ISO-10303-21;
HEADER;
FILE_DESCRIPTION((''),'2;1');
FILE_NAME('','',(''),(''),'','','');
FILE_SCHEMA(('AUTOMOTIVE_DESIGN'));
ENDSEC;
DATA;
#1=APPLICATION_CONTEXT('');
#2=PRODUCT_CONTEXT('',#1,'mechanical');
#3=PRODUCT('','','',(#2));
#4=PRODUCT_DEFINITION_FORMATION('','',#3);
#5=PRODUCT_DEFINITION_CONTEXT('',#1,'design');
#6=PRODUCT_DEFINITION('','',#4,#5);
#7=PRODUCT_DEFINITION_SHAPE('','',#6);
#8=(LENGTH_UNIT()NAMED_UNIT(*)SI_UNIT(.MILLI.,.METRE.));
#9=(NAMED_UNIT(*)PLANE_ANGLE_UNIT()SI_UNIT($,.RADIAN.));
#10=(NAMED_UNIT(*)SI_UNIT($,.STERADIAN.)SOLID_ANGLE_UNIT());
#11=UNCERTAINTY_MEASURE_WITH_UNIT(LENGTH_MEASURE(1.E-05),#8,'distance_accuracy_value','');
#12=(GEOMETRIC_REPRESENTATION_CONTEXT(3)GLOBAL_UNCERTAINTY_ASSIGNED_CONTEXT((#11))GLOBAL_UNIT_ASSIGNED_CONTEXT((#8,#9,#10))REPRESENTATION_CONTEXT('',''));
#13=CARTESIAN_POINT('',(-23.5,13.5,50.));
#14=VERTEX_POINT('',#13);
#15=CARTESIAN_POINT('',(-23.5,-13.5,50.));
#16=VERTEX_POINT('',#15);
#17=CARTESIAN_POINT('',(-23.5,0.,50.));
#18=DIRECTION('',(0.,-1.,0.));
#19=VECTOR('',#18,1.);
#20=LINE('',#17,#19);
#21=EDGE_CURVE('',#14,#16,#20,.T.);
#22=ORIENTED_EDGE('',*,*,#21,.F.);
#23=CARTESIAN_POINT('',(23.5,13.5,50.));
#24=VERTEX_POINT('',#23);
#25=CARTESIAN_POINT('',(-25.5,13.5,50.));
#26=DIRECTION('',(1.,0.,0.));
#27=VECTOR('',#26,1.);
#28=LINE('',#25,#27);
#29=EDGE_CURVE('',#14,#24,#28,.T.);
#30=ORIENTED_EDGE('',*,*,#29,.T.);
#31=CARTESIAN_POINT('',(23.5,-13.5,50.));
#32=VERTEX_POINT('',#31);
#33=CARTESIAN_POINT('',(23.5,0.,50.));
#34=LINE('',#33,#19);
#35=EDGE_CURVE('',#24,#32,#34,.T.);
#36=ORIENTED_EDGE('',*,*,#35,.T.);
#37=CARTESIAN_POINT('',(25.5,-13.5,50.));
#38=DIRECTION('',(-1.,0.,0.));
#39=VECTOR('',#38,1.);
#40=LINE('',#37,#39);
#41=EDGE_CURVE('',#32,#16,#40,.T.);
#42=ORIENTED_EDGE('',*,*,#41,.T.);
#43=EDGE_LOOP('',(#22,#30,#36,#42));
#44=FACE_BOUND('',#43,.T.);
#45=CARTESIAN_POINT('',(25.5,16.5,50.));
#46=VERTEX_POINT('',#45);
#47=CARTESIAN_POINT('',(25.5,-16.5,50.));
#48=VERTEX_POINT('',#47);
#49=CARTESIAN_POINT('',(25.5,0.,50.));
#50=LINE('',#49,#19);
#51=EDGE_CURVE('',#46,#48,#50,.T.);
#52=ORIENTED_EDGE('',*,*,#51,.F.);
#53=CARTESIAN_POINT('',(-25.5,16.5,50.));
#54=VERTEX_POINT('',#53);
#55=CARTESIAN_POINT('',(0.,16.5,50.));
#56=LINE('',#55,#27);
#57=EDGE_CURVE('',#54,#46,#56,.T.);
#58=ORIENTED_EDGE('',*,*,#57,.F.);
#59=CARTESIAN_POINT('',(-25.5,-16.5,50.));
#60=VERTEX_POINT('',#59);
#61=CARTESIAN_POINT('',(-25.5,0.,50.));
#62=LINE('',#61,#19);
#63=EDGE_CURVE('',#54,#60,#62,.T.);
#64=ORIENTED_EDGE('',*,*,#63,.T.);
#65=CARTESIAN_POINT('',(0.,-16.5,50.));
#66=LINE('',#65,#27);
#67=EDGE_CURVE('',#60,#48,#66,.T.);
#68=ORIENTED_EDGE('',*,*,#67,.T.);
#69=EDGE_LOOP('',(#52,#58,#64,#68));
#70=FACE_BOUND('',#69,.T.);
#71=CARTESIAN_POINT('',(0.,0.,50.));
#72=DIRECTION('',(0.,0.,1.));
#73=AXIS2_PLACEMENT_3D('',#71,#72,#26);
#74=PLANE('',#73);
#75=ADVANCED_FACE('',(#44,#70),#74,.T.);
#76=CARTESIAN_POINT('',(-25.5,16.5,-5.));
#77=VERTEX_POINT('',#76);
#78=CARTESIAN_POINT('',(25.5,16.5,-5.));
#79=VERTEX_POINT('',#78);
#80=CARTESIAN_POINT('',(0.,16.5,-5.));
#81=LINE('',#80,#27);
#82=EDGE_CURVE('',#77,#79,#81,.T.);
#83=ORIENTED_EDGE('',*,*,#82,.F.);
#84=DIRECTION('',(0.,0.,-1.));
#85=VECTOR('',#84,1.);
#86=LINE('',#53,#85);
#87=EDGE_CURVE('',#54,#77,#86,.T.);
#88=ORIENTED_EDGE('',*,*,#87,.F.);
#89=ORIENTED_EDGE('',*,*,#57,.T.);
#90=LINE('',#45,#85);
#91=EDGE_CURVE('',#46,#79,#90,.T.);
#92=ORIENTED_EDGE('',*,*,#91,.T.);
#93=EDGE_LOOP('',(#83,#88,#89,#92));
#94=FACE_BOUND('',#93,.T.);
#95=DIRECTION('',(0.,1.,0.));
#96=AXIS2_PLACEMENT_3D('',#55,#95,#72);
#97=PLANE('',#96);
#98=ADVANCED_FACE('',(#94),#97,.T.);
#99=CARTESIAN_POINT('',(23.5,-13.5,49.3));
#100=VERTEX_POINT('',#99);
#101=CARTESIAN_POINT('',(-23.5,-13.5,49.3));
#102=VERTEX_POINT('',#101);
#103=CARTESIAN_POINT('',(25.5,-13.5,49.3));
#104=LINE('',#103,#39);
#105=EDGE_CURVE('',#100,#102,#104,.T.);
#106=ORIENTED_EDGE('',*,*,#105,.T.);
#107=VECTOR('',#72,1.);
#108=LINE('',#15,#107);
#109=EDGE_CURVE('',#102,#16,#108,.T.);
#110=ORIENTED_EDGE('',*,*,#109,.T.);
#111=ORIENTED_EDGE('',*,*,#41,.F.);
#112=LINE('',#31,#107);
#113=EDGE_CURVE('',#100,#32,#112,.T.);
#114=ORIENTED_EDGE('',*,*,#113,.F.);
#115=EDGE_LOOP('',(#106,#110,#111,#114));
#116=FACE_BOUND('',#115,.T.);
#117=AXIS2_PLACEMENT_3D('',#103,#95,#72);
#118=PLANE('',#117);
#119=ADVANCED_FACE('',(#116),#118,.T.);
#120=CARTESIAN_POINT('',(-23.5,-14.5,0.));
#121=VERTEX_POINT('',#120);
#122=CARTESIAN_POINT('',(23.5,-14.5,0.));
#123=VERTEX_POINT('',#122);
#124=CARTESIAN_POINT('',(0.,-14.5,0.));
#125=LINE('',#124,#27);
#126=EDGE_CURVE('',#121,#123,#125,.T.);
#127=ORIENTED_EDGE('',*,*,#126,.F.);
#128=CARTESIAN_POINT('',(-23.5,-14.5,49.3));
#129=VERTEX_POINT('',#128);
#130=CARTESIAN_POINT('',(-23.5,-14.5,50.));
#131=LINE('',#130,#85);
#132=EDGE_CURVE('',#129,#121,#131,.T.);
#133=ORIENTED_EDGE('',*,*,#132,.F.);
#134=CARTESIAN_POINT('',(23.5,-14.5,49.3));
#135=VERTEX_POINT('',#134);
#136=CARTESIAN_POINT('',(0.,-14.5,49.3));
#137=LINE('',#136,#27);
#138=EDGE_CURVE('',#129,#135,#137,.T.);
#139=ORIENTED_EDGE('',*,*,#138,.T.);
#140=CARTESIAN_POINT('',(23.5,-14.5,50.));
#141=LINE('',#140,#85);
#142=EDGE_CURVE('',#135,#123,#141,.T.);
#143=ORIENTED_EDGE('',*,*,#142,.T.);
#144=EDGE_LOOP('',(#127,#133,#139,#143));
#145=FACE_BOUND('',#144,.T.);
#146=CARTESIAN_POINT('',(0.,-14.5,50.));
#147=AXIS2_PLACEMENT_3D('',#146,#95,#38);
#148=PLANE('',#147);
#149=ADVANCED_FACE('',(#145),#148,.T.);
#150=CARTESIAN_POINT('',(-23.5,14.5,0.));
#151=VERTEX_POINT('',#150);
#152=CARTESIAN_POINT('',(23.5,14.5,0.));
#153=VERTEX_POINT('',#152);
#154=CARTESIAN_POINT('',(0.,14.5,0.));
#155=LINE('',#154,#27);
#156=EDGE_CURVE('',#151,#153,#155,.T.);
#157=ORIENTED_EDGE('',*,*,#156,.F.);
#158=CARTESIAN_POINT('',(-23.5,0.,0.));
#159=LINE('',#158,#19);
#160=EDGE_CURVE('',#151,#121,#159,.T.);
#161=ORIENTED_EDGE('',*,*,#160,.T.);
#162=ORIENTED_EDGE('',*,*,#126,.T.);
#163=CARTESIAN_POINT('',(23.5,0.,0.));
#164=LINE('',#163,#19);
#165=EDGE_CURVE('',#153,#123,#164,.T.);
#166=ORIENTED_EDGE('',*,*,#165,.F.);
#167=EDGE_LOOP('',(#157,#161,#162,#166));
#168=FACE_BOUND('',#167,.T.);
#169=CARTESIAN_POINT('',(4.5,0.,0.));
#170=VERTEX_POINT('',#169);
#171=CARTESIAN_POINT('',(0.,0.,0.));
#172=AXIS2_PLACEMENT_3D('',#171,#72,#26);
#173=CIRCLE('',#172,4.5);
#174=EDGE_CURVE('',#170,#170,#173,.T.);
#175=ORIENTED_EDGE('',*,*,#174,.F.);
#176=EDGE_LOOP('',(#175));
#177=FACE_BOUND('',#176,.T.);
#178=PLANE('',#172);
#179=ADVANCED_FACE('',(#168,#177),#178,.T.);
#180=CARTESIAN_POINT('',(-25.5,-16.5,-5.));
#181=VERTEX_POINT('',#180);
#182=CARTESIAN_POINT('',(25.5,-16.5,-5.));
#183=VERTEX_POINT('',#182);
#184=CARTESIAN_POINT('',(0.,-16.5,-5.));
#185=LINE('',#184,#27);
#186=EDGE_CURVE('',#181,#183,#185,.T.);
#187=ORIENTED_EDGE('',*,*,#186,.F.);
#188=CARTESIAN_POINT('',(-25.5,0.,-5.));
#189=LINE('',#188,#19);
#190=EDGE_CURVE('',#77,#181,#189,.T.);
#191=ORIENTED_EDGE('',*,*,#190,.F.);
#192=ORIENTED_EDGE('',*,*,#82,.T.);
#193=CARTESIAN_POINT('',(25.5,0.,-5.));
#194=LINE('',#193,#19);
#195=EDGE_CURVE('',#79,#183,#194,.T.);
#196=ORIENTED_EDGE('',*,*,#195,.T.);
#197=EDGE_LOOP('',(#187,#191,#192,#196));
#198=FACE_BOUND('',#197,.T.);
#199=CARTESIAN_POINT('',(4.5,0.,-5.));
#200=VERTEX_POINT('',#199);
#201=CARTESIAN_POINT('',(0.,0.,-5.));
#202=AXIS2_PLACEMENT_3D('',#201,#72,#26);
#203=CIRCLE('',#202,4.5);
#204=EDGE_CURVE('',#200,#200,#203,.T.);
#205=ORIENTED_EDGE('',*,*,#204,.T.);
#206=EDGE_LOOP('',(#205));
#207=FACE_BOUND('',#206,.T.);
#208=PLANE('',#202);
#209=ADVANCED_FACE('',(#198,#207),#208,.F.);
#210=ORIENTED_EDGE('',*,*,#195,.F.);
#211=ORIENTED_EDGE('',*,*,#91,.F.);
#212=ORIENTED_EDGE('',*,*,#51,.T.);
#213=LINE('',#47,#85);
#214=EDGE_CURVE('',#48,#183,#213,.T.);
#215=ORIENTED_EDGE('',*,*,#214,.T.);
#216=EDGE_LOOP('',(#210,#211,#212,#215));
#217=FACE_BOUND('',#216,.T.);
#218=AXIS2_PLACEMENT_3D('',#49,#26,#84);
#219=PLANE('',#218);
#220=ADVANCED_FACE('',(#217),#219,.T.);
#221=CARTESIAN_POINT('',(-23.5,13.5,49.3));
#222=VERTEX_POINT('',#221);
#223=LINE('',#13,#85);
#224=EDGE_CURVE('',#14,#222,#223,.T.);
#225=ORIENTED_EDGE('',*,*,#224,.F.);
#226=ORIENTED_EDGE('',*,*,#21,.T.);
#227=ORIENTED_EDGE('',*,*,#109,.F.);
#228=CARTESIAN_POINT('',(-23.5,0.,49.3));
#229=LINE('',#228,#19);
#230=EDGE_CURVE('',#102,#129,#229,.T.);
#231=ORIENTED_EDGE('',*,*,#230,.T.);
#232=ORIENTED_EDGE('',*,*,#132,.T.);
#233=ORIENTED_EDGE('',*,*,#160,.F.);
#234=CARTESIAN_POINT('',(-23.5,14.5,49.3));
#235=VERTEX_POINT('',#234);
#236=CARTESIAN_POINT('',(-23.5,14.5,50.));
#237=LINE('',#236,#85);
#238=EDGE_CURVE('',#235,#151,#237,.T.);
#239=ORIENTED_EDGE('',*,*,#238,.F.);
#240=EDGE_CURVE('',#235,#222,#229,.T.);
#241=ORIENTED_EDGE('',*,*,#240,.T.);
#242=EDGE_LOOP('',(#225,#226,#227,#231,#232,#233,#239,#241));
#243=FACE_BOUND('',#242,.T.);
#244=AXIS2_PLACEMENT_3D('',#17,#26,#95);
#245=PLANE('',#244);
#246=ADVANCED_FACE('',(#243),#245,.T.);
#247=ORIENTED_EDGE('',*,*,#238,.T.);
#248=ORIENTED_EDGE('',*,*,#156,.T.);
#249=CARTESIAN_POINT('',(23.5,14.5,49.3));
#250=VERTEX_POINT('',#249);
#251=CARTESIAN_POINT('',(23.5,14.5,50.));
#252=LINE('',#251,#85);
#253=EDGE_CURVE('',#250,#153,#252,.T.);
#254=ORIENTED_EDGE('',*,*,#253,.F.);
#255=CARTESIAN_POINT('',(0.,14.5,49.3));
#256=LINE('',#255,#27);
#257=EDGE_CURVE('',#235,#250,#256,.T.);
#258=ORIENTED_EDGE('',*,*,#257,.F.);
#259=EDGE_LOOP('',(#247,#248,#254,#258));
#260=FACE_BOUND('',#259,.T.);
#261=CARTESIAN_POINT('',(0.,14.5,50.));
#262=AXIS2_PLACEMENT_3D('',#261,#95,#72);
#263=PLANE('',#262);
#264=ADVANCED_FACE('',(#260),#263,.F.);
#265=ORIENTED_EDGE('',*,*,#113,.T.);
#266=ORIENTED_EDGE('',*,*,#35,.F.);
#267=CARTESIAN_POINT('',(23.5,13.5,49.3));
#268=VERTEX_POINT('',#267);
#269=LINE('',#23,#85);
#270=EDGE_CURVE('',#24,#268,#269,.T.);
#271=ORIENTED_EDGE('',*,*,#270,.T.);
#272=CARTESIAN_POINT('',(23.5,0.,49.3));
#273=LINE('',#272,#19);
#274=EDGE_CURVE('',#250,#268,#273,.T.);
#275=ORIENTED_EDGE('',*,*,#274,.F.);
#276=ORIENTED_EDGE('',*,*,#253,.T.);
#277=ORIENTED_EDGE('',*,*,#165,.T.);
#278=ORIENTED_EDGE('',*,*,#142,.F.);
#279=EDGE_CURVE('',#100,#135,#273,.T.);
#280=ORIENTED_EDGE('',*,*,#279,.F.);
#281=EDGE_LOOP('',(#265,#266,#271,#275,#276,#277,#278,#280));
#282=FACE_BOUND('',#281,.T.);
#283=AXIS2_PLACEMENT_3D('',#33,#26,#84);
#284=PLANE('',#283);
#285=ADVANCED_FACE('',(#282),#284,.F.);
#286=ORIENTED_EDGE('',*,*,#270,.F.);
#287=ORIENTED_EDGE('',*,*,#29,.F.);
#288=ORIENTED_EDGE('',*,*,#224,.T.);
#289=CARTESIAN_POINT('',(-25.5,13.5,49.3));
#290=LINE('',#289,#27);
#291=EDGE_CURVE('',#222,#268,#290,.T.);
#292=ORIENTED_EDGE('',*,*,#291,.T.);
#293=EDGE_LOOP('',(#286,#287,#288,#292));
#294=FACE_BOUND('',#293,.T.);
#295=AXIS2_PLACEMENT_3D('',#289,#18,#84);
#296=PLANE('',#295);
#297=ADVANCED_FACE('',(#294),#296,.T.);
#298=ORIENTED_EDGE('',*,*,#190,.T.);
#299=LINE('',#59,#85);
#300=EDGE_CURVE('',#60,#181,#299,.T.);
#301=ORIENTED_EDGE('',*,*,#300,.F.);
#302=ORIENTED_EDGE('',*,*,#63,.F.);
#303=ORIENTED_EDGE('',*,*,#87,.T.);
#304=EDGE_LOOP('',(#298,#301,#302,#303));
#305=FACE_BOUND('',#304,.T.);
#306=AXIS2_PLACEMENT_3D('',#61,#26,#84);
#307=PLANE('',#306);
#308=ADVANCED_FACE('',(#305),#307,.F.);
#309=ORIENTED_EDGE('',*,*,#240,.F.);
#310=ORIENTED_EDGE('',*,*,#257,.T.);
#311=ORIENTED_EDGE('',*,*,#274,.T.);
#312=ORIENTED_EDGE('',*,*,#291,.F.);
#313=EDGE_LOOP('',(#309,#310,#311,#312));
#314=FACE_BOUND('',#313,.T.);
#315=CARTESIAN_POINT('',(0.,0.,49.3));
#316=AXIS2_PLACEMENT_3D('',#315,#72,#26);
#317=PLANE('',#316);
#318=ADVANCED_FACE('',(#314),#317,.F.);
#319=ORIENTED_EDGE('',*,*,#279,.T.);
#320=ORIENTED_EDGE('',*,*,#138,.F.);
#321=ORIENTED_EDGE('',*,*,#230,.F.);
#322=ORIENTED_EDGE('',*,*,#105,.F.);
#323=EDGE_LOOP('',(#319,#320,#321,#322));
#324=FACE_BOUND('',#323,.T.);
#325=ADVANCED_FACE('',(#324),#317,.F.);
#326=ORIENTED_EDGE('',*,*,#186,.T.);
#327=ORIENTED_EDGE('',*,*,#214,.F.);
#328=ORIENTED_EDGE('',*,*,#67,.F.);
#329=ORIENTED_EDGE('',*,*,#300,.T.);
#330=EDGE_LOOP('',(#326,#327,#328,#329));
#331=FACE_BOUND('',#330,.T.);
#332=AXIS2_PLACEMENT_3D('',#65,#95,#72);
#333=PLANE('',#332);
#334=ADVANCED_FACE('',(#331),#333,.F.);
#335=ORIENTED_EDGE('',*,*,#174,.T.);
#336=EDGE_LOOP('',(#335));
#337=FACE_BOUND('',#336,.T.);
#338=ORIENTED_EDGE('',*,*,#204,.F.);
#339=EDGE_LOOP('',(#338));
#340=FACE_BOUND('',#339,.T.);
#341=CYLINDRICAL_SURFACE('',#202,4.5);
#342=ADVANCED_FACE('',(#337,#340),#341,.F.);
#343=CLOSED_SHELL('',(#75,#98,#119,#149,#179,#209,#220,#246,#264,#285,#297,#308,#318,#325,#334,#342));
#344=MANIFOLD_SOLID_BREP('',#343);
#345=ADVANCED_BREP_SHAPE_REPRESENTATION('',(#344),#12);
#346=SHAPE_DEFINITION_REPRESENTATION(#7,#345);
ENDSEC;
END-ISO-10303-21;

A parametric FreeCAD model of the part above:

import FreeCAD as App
import Part
import Sketcher
from FreeCAD import Vector


def add_polygon(sketch, points):
    """Adds a closed chain of lines whose ends are joined by coincident constraints."""
    first, n = sketch.GeometryCount, len(points)
    for a, b in zip(points, points[1:] + points[:1]):
        sketch.addGeometry(Part.LineSegment(App.Vector(*a, 0), App.Vector(*b, 0)), False)
    for i in range(n):
        sketch.addConstraint(Sketcher.Constraint("Coincident", first + i, 2, first + (i + 1) % n, 1))

doc = App.newDocument("Part")
body = doc.addObject("PartDesign::Body", "Body")

# Sketch on XY plane
sketch1 = doc.addObject("Sketcher::SketchObject", "Sketch")
body.addObject(sketch1)
sketch1.AttachmentSupport = (doc.XY_Plane, [""])
sketch1.MapMode = "FlatFace"
add_polygon(sketch1, [(-26, 16), (-26, -16), (26, -16), (26, 16)])  # lines 0-3
add_polygon(sketch1, [(24, -14), (-24, -14), (-24, 14), (24, 14)])  # lines 4-7
sketch1.addConstraint([
    Sketcher.Constraint("Vertical", 0),
    Sketcher.Constraint("Horizontal", 1),
    Sketcher.Constraint("Vertical", 2),
    Sketcher.Constraint("Horizontal", 3),
    Sketcher.Constraint("Horizontal", 4),
    Sketcher.Constraint("Vertical", 5),
    Sketcher.Constraint("Horizontal", 6),
    Sketcher.Constraint("Vertical", 7),
    Sketcher.Constraint("Symmetric", 0, 2, 2, 2, -1, 1),
    Sketcher.Constraint("Symmetric", 4, 2, 6, 2, -1, 1),
    Sketcher.Constraint("DistanceX", 1, 1, 1, 2, 51.0),
    Sketcher.Constraint("DistanceX", 4, 2, 4, 1, 47.0),
    Sketcher.Constraint("DistanceY", 0, 2, 0, 1, 33.0),
    Sketcher.Constraint("DistanceY", 5, 1, 5, 2, 29.0),
])
pad1 = doc.addObject("PartDesign::Pad", "Pad")
body.addObject(pad1)
pad1.Profile = sketch1
pad1.Length = 50

# Sketch on XY plane
sketch2 = doc.addObject("Sketcher::SketchObject", "Sketch001")
body.addObject(sketch2)
sketch2.AttachmentSupport = (doc.XY_Plane, [""])
sketch2.MapMode = "FlatFace"
add_polygon(sketch2, [(-25.5, 16.5), (-25.5, -16.5), (25.5, -16.5), (25.5, 16.5)])  # lines 0-3
sketch2.addGeometry(Part.Circle(Vector(0, 0, 0), Vector(0, 0, 1), 4.5), False)  # 4
sketch2.addConstraint([
    Sketcher.Constraint("Vertical", 0),
    Sketcher.Constraint("Horizontal", 1),
    Sketcher.Constraint("Vertical", 2),
    Sketcher.Constraint("Horizontal", 3),
    Sketcher.Constraint("Coincident", 4, 3, -1, 1),
    Sketcher.Constraint("Symmetric", 0, 2, 2, 2, -1, 1),
    Sketcher.Constraint("Diameter", 4, 9.0),
    Sketcher.Constraint("DistanceX", 1, 1, 1, 2, 51.0),
    Sketcher.Constraint("DistanceY", 0, 2, 0, 1, 33.0),
])
pad2 = doc.addObject("PartDesign::Pad", "Pad001")
body.addObject(pad2)
pad2.Profile = sketch2
pad2.Length = 5
pad2.Reversed = True

# Sketch on XY plane
sketch3 = doc.addObject("Sketcher::SketchObject", "Sketch002")
body.addObject(sketch3)
sketch3.AttachmentSupport = (doc.XY_Plane, [""])
sketch3.MapMode = "FlatFace"
sketch3.AttachmentOffset = App.Placement(Vector(0, 0, 50), App.Rotation())
add_polygon(sketch3, [(-25.5, 16.5), (-25.5, 13.5), (25.5, 13.5), (25.5, 16.5)])  # lines 0-3
add_polygon(sketch3, [(-25.5, -13.5), (-25.5, -16.5), (25.5, -16.5), (25.5, -13.5)])  # lines 4-7
sketch3.addConstraint([
    Sketcher.Constraint("Vertical", 0),
    Sketcher.Constraint("Horizontal", 1),
    Sketcher.Constraint("Vertical", 2),
    Sketcher.Constraint("Horizontal", 3),
    Sketcher.Constraint("Vertical", 4),
    Sketcher.Constraint("Horizontal", 5),
    Sketcher.Constraint("Vertical", 6),
    Sketcher.Constraint("Horizontal", 7),
    Sketcher.Constraint("Symmetric", 2, 2, 4, 2, -1, 1),
    Sketcher.Constraint("Symmetric", 0, 2, 6, 2, -1, 1),
    Sketcher.Constraint("Vertical", 3, 2, 4, 2),
    Sketcher.Constraint("DistanceX", 1, 1, 1, 2, 51.0),
    Sketcher.Constraint("DistanceY", 0, 2, 0, 1, 3.0),
    Sketcher.Constraint("DistanceY", 4, 2, 0, 2, 30.0),
])
pad3 = doc.addObject("PartDesign::Pad", "Pad002")
body.addObject(pad3)
pad3.Profile = sketch3
pad3.Length = 0.7
pad3.Reversed = True

doc.recompute()
